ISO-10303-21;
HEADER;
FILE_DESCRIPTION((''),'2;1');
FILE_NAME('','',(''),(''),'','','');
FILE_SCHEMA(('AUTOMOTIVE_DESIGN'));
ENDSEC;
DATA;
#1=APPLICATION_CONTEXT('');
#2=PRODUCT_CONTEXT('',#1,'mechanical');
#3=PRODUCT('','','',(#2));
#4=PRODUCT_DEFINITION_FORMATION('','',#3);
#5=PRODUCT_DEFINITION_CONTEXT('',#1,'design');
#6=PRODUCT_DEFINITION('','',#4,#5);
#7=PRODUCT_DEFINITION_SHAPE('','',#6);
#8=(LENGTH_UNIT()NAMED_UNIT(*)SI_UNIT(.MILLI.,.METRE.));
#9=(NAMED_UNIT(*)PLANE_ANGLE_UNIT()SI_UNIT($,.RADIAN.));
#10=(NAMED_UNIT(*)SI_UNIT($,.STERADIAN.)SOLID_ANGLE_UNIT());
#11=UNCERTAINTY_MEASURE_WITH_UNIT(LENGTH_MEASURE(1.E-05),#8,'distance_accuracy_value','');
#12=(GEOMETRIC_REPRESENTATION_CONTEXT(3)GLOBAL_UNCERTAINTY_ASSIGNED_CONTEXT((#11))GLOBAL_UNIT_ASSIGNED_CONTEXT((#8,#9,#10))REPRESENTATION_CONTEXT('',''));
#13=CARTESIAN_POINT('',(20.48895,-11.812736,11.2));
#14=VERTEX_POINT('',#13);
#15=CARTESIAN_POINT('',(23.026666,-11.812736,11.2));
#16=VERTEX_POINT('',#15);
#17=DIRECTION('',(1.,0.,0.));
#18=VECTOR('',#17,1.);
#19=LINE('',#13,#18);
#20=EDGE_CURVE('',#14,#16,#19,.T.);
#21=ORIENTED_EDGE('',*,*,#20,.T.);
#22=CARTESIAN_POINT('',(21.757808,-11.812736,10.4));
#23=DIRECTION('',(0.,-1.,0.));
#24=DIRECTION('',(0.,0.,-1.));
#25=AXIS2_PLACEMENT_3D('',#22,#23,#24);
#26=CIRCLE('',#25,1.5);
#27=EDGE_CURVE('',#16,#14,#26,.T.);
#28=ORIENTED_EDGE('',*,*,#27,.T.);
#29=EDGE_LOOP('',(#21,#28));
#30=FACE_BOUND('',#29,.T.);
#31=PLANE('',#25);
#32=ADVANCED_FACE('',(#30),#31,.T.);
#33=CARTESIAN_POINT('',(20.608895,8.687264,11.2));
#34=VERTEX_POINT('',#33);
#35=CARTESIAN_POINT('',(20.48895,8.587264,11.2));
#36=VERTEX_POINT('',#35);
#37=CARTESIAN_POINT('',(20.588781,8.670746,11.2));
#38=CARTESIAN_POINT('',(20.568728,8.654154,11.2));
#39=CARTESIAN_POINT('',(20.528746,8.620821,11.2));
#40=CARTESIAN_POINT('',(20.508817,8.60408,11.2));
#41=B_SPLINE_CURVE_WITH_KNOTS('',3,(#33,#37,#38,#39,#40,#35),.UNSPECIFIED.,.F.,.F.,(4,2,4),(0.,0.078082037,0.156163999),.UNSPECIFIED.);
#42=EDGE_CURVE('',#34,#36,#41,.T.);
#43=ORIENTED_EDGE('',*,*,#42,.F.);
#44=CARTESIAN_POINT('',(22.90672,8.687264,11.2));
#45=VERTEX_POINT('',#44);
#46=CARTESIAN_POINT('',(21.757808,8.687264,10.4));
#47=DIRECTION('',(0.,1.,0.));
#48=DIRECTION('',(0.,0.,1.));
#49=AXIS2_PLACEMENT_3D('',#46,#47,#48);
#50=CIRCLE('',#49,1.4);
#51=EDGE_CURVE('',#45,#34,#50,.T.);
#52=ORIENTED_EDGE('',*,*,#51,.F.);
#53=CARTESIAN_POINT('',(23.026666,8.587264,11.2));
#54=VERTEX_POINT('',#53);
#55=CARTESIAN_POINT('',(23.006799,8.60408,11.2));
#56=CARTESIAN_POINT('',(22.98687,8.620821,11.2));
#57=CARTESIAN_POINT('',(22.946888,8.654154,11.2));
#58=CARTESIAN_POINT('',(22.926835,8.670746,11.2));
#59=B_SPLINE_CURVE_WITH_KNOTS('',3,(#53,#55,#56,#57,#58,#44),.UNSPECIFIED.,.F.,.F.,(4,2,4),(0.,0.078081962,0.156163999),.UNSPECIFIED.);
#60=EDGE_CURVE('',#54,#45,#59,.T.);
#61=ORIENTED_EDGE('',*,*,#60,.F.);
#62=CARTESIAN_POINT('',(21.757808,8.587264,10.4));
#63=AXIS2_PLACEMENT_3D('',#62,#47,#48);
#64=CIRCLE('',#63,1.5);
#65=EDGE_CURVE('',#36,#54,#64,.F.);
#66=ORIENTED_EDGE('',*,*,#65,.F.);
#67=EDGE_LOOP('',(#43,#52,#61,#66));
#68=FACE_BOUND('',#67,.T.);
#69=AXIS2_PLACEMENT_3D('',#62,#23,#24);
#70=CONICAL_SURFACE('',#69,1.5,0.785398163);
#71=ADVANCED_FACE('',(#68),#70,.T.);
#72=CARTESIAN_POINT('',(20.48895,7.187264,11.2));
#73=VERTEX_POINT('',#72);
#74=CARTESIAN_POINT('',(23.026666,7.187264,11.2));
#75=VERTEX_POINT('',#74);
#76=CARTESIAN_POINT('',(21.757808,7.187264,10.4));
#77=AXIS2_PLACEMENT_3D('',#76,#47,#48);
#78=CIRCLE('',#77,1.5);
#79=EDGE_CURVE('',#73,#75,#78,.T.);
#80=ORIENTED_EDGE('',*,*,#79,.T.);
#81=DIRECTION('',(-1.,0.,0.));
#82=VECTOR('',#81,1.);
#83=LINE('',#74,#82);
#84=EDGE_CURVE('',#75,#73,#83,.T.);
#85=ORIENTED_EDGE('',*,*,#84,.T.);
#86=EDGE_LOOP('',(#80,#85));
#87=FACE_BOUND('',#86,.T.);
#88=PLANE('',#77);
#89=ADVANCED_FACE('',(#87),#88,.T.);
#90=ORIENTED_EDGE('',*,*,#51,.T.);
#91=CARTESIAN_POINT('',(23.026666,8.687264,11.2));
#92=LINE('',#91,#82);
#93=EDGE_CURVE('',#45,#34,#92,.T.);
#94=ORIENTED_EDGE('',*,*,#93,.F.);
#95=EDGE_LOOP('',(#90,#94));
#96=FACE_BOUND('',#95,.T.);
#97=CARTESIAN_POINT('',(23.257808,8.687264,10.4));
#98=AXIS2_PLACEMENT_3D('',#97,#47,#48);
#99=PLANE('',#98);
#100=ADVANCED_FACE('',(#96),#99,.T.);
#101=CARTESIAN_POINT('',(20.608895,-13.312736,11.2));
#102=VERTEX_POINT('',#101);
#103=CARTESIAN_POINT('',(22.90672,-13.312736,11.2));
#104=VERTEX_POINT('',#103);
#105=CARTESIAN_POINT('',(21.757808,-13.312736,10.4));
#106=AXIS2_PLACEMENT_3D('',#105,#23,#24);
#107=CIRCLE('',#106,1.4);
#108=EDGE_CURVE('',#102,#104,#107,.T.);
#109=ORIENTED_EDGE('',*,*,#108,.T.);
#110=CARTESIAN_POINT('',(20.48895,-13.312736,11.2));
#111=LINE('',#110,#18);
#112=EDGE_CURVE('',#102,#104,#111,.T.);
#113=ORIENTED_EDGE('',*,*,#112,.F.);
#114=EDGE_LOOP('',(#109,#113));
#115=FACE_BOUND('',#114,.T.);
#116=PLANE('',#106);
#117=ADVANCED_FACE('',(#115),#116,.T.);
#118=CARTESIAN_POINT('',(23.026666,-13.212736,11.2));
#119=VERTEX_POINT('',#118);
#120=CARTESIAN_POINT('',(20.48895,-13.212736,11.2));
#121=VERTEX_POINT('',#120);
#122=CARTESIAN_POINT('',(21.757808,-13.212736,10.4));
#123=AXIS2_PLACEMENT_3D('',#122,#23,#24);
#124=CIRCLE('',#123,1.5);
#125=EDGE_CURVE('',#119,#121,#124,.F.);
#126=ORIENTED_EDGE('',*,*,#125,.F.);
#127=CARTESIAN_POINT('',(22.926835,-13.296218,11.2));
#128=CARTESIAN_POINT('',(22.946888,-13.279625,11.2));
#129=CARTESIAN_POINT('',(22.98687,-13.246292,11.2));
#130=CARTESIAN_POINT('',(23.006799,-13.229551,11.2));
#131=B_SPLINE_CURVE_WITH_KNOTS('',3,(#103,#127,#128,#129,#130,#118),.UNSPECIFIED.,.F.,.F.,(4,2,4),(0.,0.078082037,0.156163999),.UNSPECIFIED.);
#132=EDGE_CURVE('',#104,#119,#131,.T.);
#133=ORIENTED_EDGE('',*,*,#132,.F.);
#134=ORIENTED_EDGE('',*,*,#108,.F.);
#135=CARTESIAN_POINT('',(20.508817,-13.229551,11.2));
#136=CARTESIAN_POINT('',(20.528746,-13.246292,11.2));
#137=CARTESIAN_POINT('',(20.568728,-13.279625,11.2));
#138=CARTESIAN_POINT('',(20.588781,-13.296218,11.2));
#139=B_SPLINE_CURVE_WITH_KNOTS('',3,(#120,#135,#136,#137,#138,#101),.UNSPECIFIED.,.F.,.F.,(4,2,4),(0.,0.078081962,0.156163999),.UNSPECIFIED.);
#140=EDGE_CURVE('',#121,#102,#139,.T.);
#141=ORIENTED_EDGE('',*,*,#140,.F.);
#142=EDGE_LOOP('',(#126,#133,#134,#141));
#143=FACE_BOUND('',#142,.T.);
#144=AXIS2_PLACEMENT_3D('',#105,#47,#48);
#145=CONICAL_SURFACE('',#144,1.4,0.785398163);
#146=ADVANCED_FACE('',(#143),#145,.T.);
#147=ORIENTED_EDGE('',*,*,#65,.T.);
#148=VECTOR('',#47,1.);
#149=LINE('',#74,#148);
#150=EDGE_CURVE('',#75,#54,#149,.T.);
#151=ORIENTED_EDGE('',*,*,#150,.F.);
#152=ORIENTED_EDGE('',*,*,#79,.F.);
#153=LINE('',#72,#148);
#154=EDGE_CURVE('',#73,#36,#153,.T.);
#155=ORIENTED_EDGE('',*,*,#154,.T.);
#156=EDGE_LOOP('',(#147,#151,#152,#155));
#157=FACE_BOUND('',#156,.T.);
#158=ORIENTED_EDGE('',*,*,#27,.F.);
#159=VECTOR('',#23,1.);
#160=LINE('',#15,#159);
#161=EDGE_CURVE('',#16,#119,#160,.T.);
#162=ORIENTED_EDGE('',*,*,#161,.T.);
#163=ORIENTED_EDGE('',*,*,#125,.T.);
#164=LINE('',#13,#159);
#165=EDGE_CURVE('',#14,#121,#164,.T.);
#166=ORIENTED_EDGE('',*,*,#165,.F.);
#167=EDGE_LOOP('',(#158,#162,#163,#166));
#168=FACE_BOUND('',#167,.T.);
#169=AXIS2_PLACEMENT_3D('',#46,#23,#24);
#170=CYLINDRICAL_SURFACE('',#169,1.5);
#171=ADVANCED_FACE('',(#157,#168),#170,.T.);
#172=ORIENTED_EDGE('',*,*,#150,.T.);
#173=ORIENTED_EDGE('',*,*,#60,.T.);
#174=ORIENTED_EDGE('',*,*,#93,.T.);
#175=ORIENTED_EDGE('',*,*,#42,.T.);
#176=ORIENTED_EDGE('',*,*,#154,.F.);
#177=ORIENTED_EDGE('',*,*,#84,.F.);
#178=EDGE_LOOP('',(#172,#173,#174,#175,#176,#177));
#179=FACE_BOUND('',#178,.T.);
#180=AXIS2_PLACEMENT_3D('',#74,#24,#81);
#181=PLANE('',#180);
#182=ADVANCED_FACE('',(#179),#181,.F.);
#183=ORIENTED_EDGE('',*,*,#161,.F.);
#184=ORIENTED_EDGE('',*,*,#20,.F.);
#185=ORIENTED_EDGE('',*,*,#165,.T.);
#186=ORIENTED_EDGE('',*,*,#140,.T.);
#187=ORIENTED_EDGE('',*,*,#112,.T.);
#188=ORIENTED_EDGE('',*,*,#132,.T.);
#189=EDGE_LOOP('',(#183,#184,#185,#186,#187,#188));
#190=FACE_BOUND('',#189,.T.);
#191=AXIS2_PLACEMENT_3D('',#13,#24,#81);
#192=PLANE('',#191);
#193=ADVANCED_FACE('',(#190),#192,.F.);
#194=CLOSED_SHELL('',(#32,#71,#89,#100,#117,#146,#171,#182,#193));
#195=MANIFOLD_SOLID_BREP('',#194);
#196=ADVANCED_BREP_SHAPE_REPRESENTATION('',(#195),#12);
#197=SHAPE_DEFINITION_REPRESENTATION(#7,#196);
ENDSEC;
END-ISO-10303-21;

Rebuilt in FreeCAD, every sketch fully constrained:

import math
import FreeCAD as App
import Part
import Sketcher

V = App.Vector
Q = App.Units.Quantity


def edges_at(feature, points):
    """Names of the edges that pass closest to the given points."""
    edges = feature.Shape.Edges
    near = lambda p: min(range(len(edges)), key=lambda i: edges[i].distToShape(Part.Vertex(*p))[0])
    return sorted({f"Edge{near(p) + 1}" for p in points})


def add_polygon(sketch, points):
    """Adds a closed chain of lines whose ends are joined by coincident constraints."""
    first, n = sketch.GeometryCount, len(points)
    for a, b in zip(points, points[1:] + points[:1]):
        sketch.addGeometry(Part.LineSegment(App.Vector(*a, 0), App.Vector(*b, 0)), False)
    for i in range(n):
        sketch.addConstraint(Sketcher.Constraint("Coincident", first + i, 2, first + (i + 1) % n, 1))

doc = App.newDocument("Part")
body = doc.addObject("PartDesign::Body", "Body")

# Sketch on XY plane
sketch1 = body.newObject("Sketcher::SketchObject", "Sketch")
sketch1.AttachmentSupport = (doc.getObject("XY_Plane"), [""])
sketch1.MapMode = "FlatFace"
sketch1.AttachmentOffset = App.Placement(V(0, 0, 10.4), App.Rotation())
add_polygon(sketch1, [(21.8, 8.7), (21.8, -13.3), (23.3, -13.3), (23.3, 8.7)])  # lines 0-3
sketch1.addGeometry(Part.LineSegment(V(21.8, 8.7, 0), V(21.8, -13.3, 0)), True)  # axis
sketch1.addConstraint(Sketcher.Constraint("Vertical", 0))
sketch1.addConstraint(Sketcher.Constraint("Horizontal", 1))
sketch1.addConstraint(Sketcher.Constraint("Vertical", 2))
sketch1.addConstraint(Sketcher.Constraint("Horizontal", 3))
sketch1.addConstraint(Sketcher.Constraint("Vertical", 4))
sketch1.addConstraint(Sketcher.Constraint("Coincident", 4, 1, 3, 2))
sketch1.addConstraint(Sketcher.Constraint("Horizontal", 1, 2, 4, 2))
sketch1.addConstraint(Sketcher.Constraint("DistanceY", 0, 2, 0, 1, Q("22 mm")))
sketch1.addConstraint(Sketcher.Constraint("DistanceX", 1, 1, 1, 2, Q("1.5 mm")))
sketch1.addConstraint(Sketcher.Constraint("DistanceX", -1, 1, 0, 2, Q("21.757808 mm")))
sketch1.addConstraint(Sketcher.Constraint("DistanceY", 0, 2, -1, 1, Q("13.312736 mm")))
revolution = body.newObject("PartDesign::Revolution", "Revolution")
revolution.Profile = sketch1
revolution.ReferenceAxis = (sketch1, ["Axis0"])
revolution.Angle = 360

# Sketch on XZ plane
sketch2 = body.newObject("Sketcher::SketchObject", "Sketch001")
sketch2.AttachmentSupport = (doc.getObject("XZ_Plane"), [""])
sketch2.MapMode = "FlatFace"
sketch2.AttachmentOffset = App.Placement(V(0, 0, -8.687264), App.Rotation())
sketch2.addGeometry(Part.LineSegment(V(23, 11.2, 0), V(20.5, 11.2, 0)), False)
sketch2.addGeometry(Part.ArcOfCircle(Part.Circle(V(21.8, 10.4, 0), V(0, 0, 1), 1.5), math.radians(32), math.radians(148)), False)
sketch2.addConstraint(Sketcher.Constraint("Coincident", 0, 1, 1, 1))
sketch2.addConstraint(Sketcher.Constraint("Coincident", 1, 2, 0, 2))
sketch2.addConstraint(Sketcher.Constraint("Horizontal", 0))
sketch2.addConstraint(Sketcher.Constraint("Radius", 1, Q("1.5 mm")))
sketch2.addConstraint(Sketcher.Constraint("DistanceY", -1, 1, 1, 3, Q("10.4 mm")))
sketch2.addConstraint(Sketcher.Constraint("DistanceY", -1, 1, 0, 1, Q("11.2 mm")))
sketch2.addConstraint(Sketcher.Constraint("DistanceX", -1, 1, 1, 2, Q("20.48895 mm")))
pocket1 = body.newObject("PartDesign::Pocket", "Pocket")
pocket1.Profile = sketch2
pocket1.Length = 1.5
pocket1.Reversed = True

# Sketch on XZ plane
sketch3 = body.newObject("Sketcher::SketchObject", "Sketch002")
sketch3.AttachmentSupport = (doc.getObject("XZ_Plane"), [""])
sketch3.MapMode = "FlatFace"
sketch3.AttachmentOffset = App.Placement(V(0, 0, 11.812736), App.Rotation())
sketch3.addGeometry(Part.LineSegment(V(20.5, 11.2, 0), V(23, 11.2, 0)), False)
sketch3.addGeometry(Part.ArcOfCircle(Part.Circle(V(21.8, 10.4, 0), V(0, 0, 1), 1.5), math.radians(32), math.radians(148)), False)
sketch3.addConstraint(Sketcher.Constraint("Coincident", 0, 1, 1, 2))
sketch3.addConstraint(Sketcher.Constraint("Coincident", 1, 1, 0, 2))
sketch3.addConstraint(Sketcher.Constraint("Horizontal", 0))
sketch3.addConstraint(Sketcher.Constraint("Radius", 1, Q("1.5 mm")))
sketch3.addConstraint(Sketcher.Constraint("DistanceY", -1, 1, 1, 3, Q("10.4 mm")))
sketch3.addConstraint(Sketcher.Constraint("DistanceY", -1, 1, 0, 1, Q("11.2 mm")))
sketch3.addConstraint(Sketcher.Constraint("DistanceX", -1, 1, 0, 1, Q("20.48895 mm")))
pocket2 = body.newObject("PartDesign::Pocket", "Pocket001")
pocket2.Profile = sketch3
pocket2.Length = 1.5
pocket2.Reversed = True
doc.recompute()

chamfer = body.newObject("PartDesign::Chamfer", "Chamfer")
chamfer.Base = (pocket2, edges_at(pocket2, [(20.444, 8.687, 9.675)]))
chamfer.Size = 0.1
doc.recompute()

chamfer2 = body.newObject("PartDesign::Chamfer", "Chamfer001")
chamfer2.Base = (chamfer, edges_at(chamfer, [(23.071, -13.313, 9.675)]))
chamfer2.Size = 0.1

doc.recompute()
